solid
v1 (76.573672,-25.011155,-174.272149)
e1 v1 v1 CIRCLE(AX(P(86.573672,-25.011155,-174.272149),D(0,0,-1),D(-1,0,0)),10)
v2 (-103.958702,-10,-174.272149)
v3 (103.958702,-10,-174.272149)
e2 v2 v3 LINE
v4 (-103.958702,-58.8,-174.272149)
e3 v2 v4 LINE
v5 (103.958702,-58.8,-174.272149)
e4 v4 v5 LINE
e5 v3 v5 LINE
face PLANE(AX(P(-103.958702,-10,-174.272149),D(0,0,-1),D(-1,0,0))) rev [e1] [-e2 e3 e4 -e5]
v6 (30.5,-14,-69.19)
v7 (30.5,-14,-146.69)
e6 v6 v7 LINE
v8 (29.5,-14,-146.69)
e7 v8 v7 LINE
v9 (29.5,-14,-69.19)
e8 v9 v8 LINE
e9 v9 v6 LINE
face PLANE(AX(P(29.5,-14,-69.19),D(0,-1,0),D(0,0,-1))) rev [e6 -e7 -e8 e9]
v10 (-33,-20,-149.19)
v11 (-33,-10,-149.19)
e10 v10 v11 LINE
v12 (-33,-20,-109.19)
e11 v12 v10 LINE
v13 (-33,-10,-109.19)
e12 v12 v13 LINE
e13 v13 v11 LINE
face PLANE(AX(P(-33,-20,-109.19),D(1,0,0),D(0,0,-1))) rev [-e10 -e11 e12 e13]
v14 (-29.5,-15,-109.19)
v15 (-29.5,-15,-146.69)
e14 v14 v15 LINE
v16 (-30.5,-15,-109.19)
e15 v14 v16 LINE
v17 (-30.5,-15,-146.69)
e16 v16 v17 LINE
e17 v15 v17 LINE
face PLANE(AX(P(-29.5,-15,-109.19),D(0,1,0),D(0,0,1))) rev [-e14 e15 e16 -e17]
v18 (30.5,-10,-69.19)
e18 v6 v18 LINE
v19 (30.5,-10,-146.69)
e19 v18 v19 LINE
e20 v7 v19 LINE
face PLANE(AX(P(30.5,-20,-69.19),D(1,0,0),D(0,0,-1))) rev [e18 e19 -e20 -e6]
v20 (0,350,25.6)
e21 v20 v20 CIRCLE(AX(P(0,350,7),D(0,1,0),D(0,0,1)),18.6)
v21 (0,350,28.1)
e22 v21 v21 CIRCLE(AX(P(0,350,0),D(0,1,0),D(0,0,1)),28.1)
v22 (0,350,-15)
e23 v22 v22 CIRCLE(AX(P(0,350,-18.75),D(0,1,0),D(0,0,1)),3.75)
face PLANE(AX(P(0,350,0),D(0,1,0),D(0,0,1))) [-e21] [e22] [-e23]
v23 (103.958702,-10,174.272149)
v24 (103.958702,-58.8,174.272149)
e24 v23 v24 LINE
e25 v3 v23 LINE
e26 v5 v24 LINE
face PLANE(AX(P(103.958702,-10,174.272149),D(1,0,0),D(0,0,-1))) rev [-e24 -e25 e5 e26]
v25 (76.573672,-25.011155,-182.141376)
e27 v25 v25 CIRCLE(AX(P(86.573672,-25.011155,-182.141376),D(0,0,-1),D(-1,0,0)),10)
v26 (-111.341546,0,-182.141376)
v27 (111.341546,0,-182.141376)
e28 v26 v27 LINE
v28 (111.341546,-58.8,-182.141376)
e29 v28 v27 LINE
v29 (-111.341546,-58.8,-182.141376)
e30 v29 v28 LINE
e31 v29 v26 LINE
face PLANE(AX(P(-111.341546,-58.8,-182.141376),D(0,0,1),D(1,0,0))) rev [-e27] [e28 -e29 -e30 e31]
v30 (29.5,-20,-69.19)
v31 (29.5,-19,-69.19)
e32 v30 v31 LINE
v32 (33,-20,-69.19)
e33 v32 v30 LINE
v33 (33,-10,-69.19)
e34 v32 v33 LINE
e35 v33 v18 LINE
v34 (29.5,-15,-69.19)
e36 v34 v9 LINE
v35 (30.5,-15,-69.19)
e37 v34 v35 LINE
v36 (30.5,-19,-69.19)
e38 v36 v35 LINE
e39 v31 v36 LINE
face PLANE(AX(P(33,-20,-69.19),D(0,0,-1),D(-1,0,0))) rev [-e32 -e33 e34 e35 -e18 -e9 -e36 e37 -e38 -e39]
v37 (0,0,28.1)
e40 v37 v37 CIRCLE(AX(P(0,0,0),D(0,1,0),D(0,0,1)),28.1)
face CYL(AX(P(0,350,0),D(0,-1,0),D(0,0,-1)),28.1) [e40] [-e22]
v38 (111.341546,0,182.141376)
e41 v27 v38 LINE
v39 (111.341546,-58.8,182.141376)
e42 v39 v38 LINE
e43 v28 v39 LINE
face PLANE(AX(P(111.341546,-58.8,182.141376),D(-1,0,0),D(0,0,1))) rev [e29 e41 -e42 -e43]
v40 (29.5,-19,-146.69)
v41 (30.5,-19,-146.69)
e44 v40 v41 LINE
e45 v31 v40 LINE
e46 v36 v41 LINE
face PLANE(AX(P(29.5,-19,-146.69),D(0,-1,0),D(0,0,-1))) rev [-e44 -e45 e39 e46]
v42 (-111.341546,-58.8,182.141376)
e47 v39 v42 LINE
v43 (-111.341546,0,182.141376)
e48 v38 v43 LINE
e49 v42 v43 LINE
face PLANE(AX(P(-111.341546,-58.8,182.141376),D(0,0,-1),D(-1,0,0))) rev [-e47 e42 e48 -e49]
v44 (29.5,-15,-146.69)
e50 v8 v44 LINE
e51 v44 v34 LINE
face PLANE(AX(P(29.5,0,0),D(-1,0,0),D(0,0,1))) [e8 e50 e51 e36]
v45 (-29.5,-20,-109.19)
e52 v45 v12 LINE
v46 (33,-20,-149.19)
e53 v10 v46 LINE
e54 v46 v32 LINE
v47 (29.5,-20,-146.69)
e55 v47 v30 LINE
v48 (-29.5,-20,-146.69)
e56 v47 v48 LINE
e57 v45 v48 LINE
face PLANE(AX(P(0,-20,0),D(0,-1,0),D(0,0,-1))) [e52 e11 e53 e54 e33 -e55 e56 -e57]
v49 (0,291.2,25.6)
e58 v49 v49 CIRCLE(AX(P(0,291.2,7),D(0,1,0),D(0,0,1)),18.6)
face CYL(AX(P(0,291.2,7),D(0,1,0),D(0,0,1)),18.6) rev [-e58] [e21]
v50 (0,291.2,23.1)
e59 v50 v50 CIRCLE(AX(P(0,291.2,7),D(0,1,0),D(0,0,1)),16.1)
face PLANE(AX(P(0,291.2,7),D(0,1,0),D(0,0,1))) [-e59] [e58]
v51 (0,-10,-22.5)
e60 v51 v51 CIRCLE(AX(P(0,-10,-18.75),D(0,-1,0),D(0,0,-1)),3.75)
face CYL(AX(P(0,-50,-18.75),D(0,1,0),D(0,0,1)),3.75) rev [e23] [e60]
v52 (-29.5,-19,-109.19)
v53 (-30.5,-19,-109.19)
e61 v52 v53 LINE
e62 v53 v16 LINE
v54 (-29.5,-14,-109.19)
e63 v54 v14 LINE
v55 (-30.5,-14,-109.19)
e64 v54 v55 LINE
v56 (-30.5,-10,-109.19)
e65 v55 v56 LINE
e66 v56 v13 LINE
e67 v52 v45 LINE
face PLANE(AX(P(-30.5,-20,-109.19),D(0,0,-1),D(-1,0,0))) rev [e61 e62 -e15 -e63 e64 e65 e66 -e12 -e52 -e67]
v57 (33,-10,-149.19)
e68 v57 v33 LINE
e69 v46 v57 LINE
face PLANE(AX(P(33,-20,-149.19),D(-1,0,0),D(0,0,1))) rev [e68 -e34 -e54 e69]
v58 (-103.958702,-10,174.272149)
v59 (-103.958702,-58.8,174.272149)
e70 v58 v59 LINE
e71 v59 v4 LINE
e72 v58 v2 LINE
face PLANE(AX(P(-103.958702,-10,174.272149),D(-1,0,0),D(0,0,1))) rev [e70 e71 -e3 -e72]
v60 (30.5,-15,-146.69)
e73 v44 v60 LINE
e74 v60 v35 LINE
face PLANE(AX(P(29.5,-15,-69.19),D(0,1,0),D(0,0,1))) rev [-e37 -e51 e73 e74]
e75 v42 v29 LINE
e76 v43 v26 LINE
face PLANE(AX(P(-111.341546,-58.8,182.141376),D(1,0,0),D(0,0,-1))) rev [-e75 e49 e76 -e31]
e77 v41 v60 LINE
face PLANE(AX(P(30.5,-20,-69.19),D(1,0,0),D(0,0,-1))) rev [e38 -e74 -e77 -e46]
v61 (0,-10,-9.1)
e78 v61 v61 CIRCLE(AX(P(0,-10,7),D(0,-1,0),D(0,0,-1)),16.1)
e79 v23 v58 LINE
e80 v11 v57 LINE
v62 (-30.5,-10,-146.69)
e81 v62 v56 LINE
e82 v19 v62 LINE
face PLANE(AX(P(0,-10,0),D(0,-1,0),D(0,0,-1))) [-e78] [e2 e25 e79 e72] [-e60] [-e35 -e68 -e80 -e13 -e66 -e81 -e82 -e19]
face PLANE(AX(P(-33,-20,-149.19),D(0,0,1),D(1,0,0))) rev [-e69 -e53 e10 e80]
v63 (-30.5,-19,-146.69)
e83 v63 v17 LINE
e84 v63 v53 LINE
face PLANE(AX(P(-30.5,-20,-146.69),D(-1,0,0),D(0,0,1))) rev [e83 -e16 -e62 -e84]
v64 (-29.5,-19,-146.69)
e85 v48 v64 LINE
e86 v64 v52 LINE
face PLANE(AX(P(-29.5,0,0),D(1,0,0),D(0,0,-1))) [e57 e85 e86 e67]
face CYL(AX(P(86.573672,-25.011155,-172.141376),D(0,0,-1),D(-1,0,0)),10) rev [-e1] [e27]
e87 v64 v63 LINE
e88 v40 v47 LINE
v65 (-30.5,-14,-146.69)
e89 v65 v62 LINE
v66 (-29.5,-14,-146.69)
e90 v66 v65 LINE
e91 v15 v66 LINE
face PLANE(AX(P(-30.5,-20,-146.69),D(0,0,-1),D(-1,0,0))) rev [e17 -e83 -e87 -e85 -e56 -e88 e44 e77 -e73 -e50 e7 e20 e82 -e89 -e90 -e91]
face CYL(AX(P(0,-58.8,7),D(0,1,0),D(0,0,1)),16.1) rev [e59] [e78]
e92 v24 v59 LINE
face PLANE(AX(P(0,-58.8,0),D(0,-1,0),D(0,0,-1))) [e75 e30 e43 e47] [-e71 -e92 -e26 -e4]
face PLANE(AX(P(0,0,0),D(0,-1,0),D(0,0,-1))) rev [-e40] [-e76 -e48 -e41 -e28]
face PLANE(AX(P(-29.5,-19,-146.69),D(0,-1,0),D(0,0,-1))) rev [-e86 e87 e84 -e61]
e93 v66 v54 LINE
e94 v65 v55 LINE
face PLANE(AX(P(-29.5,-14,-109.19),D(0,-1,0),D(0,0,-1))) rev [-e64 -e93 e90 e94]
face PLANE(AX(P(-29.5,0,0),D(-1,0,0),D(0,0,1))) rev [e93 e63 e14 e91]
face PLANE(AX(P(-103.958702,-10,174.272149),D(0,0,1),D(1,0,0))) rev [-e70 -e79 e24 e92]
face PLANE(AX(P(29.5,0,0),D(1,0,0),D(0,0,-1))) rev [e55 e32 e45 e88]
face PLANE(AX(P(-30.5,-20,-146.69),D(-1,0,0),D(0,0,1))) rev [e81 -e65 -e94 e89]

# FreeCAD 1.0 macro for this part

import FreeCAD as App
import Part
import Sketcher

V = App.Vector
Q = App.Units.Quantity

doc = App.newDocument("Part")
params = doc.addObject("Spreadsheet::Sheet", "Params")
for row, (alias, value) in enumerate([
    ("sketch1_diameter", "56.2 mm"),
    ("pad1_length", "350 mm"),
    ("sketch2_diameter", "37.2 mm"),
    ("pocket1_length", "58.8 mm"),
    ("pad2_length", "58.8 mm"),
    ("pocket2_length", "48.8 mm"),
    ("sketch5_diameter", "32.2 mm"),
    ("pocket3_length", "350 mm"),
    ("sketch6_diameter", "7.5 mm"),
    ("pocket4_length", "400 mm"),
    ("sketch7_width", "61 mm"),
    ("sketch7_width2", "66 mm"),
    ("sketch7_height", "40 mm"),
    ("sketch7_height2", "80 mm"),
    ("sketch7_height3", "77.5 mm"),
    ("pad3_length", "10 mm"),
    ("sketch8_diameter", "20 mm"),
    ("pocket5_length", "10 mm"),
    ("sketch9_width", "1 mm"),
    ("sketch9_height", "37.5 mm"),
    ("pad4_length", "1 mm"),
    ("sketch10_width", "1 mm"),
    ("sketch10_height", "37.5 mm"),
    ("pad5_length", "1 mm"),
    ("sketch11_width", "1 mm"),
    ("sketch11_height", "77.5 mm"),
    ("pad6_length", "1 mm"),
    ("sketch12_width", "1 mm"),
    ("sketch12_height", "77.5 mm"),
    ("pad7_length", "1 mm"),
], start=1):
    params.set(f"A{row}", alias)
    params.set(f"B{row}", "=" + value)
    params.setAlias(f"B{row}", alias)

body = doc.addObject("PartDesign::Body", "Body")

# Sketch on XZ plane
sketch1 = body.newObject("Sketcher::SketchObject", "Sketch")
sketch1.AttachmentSupport = (doc.getObject("XZ_Plane"), [""])
sketch1.MapMode = "FlatFace"
sketch1.addGeometry(Part.Circle(V(0, 0, 0), V(0, 0, 1), 28), False)
sketch1.addConstraint(Sketcher.Constraint("Coincident", 0, 3, -1, 1))
sketch1.addConstraint(Sketcher.Constraint("Diameter", 0, Q("56.2 mm")))
sketch1.setExpression("Constraints[1]", "Params.sketch1_diameter")
pad1 = body.newObject("PartDesign::Pad", "Pad")
pad1.Profile = sketch1
pad1.setExpression("Length", "Params.pad1_length")
pad1.Reversed = True

# Sketch on XZ plane
sketch2 = body.newObject("Sketcher::SketchObject", "Sketch001")
sketch2.AttachmentSupport = (doc.getObject("XZ_Plane"), [""])
sketch2.MapMode = "FlatFace"
sketch2.AttachmentOffset = App.Placement(V(0, 0, -350), App.Rotation())
sketch2.addGeometry(Part.Circle(V(0, 7, 0), V(0, 0, 1), 19), False)
sketch2.addConstraint(Sketcher.Constraint("PointOnObject", 0, 3, -2))
sketch2.addConstraint(Sketcher.Constraint("Diameter", 0, Q("37.2 mm")))
sketch2.addConstraint(Sketcher.Constraint("DistanceY", -1, 1, 0, 3, Q("7 mm")))
sketch2.setExpression("Constraints[1]", "Params.sketch2_diameter")
pocket1 = body.newObject("PartDesign::Pocket", "Pocket")
pocket1.Profile = sketch2
pocket1.setExpression("Length", "Params.pocket1_length")
pocket1.Reversed = True

# Sketch on XZ plane
sketch3 = body.newObject("Sketcher::SketchObject", "Sketch002")
sketch3.AttachmentSupport = (doc.getObject("XZ_Plane"), [""])
sketch3.MapMode = "FlatFace"
sketch3.addGeometry(Part.LineSegment(V(111, -182, 0), V(111, 182, 0)), False)
sketch3.addGeometry(Part.LineSegment(V(111, 182, 0), V(-111, 182, 0)), False)
sketch3.addGeometry(Part.LineSegment(V(-111, 182, 0), V(-111, -182, 0)), False)
sketch3.addGeometry(Part.LineSegment(V(-111, -182, 0), V(111, -182, 0)), False)
sketch3.addConstraint(Sketcher.Constraint("Coincident", 0, 2, 1, 1))
sketch3.addConstraint(Sketcher.Constraint("Coincident", 1, 2, 2, 1))
sketch3.addConstraint(Sketcher.Constraint("Coincident", 2, 2, 3, 1))
sketch3.addConstraint(Sketcher.Constraint("Coincident", 3, 2, 0, 1))
sketch3.addConstraint(Sketcher.Constraint("Vertical", 0))
sketch3.addConstraint(Sketcher.Constraint("Horizontal", 1))
sketch3.addConstraint(Sketcher.Constraint("Vertical", 2))
sketch3.addConstraint(Sketcher.Constraint("Horizontal", 3))
sketch3.addConstraint(Sketcher.Constraint("Symmetric", 0, 2, 2, 2, -1, 1))
sketch3.addConstraint(Sketcher.Constraint("DistanceX", 1, 2, 1, 1, Q("222.683092 mm")))
sketch3.addConstraint(Sketcher.Constraint("DistanceY", 0, 1, 0, 2, Q("364.282752 mm")))
pad2 = body.newObject("PartDesign::Pad", "Pad001")
pad2.Profile = sketch3
pad2.setExpression("Length", "Params.pad2_length")

# Sketch on XZ plane
sketch4 = body.newObject("Sketcher::SketchObject", "Sketch003")
sketch4.AttachmentSupport = (doc.getObject("XZ_Plane"), [""])
sketch4.MapMode = "FlatFace"
sketch4.AttachmentOffset = App.Placement(V(0, 0, 58.8), App.Rotation())
sketch4.addGeometry(Part.LineSegment(V(104, -174, 0), V(104, 174, 0)), False)
sketch4.addGeometry(Part.LineSegment(V(104, 174, 0), V(-104, 174, 0)), False)
sketch4.addGeometry(Part.LineSegment(V(-104, 174, 0), V(-104, -174, 0)), False)
sketch4.addGeometry(Part.LineSegment(V(-104, -174, 0), V(104, -174, 0)), False)
sketch4.addConstraint(Sketcher.Constraint("Coincident", 0, 2, 1, 1))
sketch4.addConstraint(Sketcher.Constraint("Coincident", 1, 2, 2, 1))
sketch4.addConstraint(Sketcher.Constraint("Coincident", 2, 2, 3, 1))
sketch4.addConstraint(Sketcher.Constraint("Coincident", 3, 2, 0, 1))
sketch4.addConstraint(Sketcher.Constraint("Vertical", 0))
sketch4.addConstraint(Sketcher.Constraint("Horizontal", 1))
sketch4.addConstraint(Sketcher.Constraint("Vertical", 2))
sketch4.addConstraint(Sketcher.Constraint("Horizontal", 3))
sketch4.addConstraint(Sketcher.Constraint("Symmetric", 0, 2, 2, 2, -1, 1))
sketch4.addConstraint(Sketcher.Constraint("DistanceX", -1, 1, 0, 2, Q("103.958702 mm")))
sketch4.addConstraint(Sketcher.Constraint("DistanceY", 0, 1, 0, 2, Q("348.544298 mm")))
pocket2 = body.newObject("PartDesign::Pocket", "Pocket001")
pocket2.Profile = sketch4
pocket2.setExpression("Length", "Params.pocket2_length")

# Sketch on XZ plane
sketch5 = body.newObject("Sketcher::SketchObject", "Sketch004")
sketch5.AttachmentSupport = (doc.getObject("XZ_Plane"), [""])
sketch5.MapMode = "FlatFace"
sketch5.AttachmentOffset = App.Placement(V(0, 0, -291.2), App.Rotation())
sketch5.addGeometry(Part.Circle(V(0, 7, 0), V(0, 0, 1), 16), False)
sketch5.addConstraint(Sketcher.Constraint("PointOnObject", 0, 3, -2))
sketch5.addConstraint(Sketcher.Constraint("Diameter", 0, Q("32.2 mm")))
sketch5.addConstraint(Sketcher.Constraint("DistanceY", -1, 1, 0, 3, Q("7 mm")))
sketch5.setExpression("Constraints[1]", "Params.sketch5_diameter")
pocket3 = body.newObject("PartDesign::Pocket", "Pocket002")
pocket3.Profile = sketch5
pocket3.setExpression("Length", "Params.pocket3_length")
pocket3.Reversed = True

# Sketch on XZ plane
sketch6 = body.newObject("Sketcher::SketchObject", "Sketch005")
sketch6.AttachmentSupport = (doc.getObject("XZ_Plane"), [""])
sketch6.MapMode = "FlatFace"
sketch6.AttachmentOffset = App.Placement(V(0, 0, -350), App.Rotation())
sketch6.addGeometry(Part.Circle(V(0, -18.8, 0), V(0, 0, 1), 3.8), False)
sketch6.addConstraint(Sketcher.Constraint("PointOnObject", 0, 3, -2))
sketch6.addConstraint(Sketcher.Constraint("Diameter", 0, Q("7.5 mm")))
sketch6.addConstraint(Sketcher.Constraint("DistanceY", 0, 3, -1, 1, Q("18.75 mm")))
sketch6.setExpression("Constraints[1]", "Params.sketch6_diameter")
pocket4 = body.newObject("PartDesign::Pocket", "Pocket003")
pocket4.Profile = sketch6
pocket4.setExpression("Length", "Params.pocket4_length")
pocket4.Reversed = True

# Sketch on XZ plane
sketch7 = body.newObject("Sketcher::SketchObject", "Sketch006")
sketch7.AttachmentSupport = (doc.getObject("XZ_Plane"), [""])
sketch7.MapMode = "FlatFace"
sketch7.AttachmentOffset = App.Placement(V(0, 0, 10), App.Rotation())
sketch7.addGeometry(Part.LineSegment(V(33, -69.2, 0), V(30.5, -69.2, 0)), False)
sketch7.addGeometry(Part.LineSegment(V(30.5, -69.2, 0), V(30.5, -146.7, 0)), False)
sketch7.addGeometry(Part.LineSegment(V(30.5, -146.7, 0), V(-30.5, -146.7, 0)), False)
sketch7.addGeometry(Part.LineSegment(V(-30.5, -146.7, 0), V(-30.5, -109.2, 0)), False)
sketch7.addGeometry(Part.LineSegment(V(-30.5, -109.2, 0), V(-33, -109.2, 0)), False)
sketch7.addGeometry(Part.LineSegment(V(-33, -109.2, 0), V(-33, -149.2, 0)), False)
sketch7.addGeometry(Part.LineSegment(V(-33, -149.2, 0), V(33, -149.2, 0)), False)
sketch7.addGeometry(Part.LineSegment(V(33, -149.2, 0), V(33, -69.2, 0)), False)
sketch7.addConstraint(Sketcher.Constraint("Coincident", 0, 2, 1, 1))
sketch7.addConstraint(Sketcher.Constraint("Coincident", 1, 2, 2, 1))
sketch7.addConstraint(Sketcher.Constraint("Coincident", 2, 2, 3, 1))
sketch7.addConstraint(Sketcher.Constraint("Coincident", 3, 2, 4, 1))
sketch7.addConstraint(Sketcher.Constraint("Coincident", 4, 2, 5, 1))
sketch7.addConstraint(Sketcher.Constraint("Coincident", 5, 2, 6, 1))
sketch7.addConstraint(Sketcher.Constraint("Coincident", 6, 2, 7, 1))
sketch7.addConstraint(Sketcher.Constraint("Coincident", 7, 2, 0, 1))
sketch7.addConstraint(Sketcher.Constraint("Horizontal", 0))
sketch7.addConstraint(Sketcher.Constraint("Vertical", 1))
sketch7.addConstraint(Sketcher.Constraint("Horizontal", 2))
sketch7.addConstraint(Sketcher.Constraint("Vertical", 3))
sketch7.addConstraint(Sketcher.Constraint("Horizontal", 4))
sketch7.addConstraint(Sketcher.Constraint("Vertical", 5))
sketch7.addConstraint(Sketcher.Constraint("Horizontal", 6))
sketch7.addConstraint(Sketcher.Constraint("Vertical", 7))
sketch7.addConstraint(Sketcher.Constraint("Equal", 0, 4))
sketch7.addConstraint(Sketcher.Constraint("DistanceX", 2, 2, 2, 1, Q("61 mm")))
sketch7.addConstraint(Sketcher.Constraint("DistanceX", 6, 1, 6, 2, Q("66 mm")))
sketch7.addConstraint(Sketcher.Constraint("DistanceY", 5, 2, 5, 1, Q("40 mm")))
sketch7.addConstraint(Sketcher.Constraint("DistanceY", 7, 1, 7, 2, Q("80 mm")))
sketch7.addConstraint(Sketcher.Constraint("DistanceY", 1, 2, 1, 1, Q("77.5 mm")))
sketch7.addConstraint(Sketcher.Constraint("DistanceX", 4, 2, -1, 1, Q("33 mm")))
sketch7.addConstraint(Sketcher.Constraint("DistanceY", 0, 2, -1, 1, Q("69.19 mm")))
sketch7.setExpression("Constraints[17]", "Params.sketch7_width")
sketch7.setExpression("Constraints[18]", "Params.sketch7_width2")
sketch7.setExpression("Constraints[19]", "Params.sketch7_height")
sketch7.setExpression("Constraints[20]", "Params.sketch7_height2")
sketch7.setExpression("Constraints[21]", "Params.sketch7_height3")
pad3 = body.newObject("PartDesign::Pad", "Pad002")
pad3.Profile = sketch7
pad3.setExpression("Length", "Params.pad3_length")

# Sketch on XY plane
sketch8 = body.newObject("Sketcher::SketchObject", "Sketch007")
sketch8.AttachmentSupport = (doc.getObject("XY_Plane"), [""])
sketch8.MapMode = "FlatFace"
sketch8.AttachmentOffset = App.Placement(V(0, 0, -182.141376), App.Rotation())
sketch8.addGeometry(Part.Circle(V(87, -25, 0), V(0, 0, 1), 10), False)
sketch8.addConstraint(Sketcher.Constraint("Diameter", 0, Q("20 mm")))
sketch8.addConstraint(Sketcher.Constraint("DistanceX", -1, 1, 0, 3, Q("86.573672 mm")))
sketch8.addConstraint(Sketcher.Constraint("DistanceY", 0, 3, -1, 1, Q("25.011155 mm")))
sketch8.setExpression("Constraints[0]", "Params.sketch8_diameter")
pocket5 = body.newObject("PartDesign::Pocket", "Pocket004")
pocket5.Profile = sketch8
pocket5.setExpression("Length", "Params.pocket5_length")
pocket5.Reversed = True

# Sketch on YZ plane
sketch9 = body.newObject("Sketcher::SketchObject", "Sketch008")
sketch9.AttachmentSupport = (doc.getObject("YZ_Plane"), [""])
sketch9.MapMode = "FlatFace"
sketch9.AttachmentOffset = App.Placement(V(0, 0, -30.5), App.Rotation())
sketch9.addGeometry(Part.LineSegment(V(-19, -109.2, 0), V(-20, -109.2, 0)), False)
sketch9.addGeometry(Part.LineSegment(V(-20, -109.2, 0), V(-20, -146.7, 0)), False)
sketch9.addGeometry(Part.LineSegment(V(-20, -146.7, 0), V(-19, -146.7, 0)), False)
sketch9.addGeometry(Part.LineSegment(V(-19, -146.7, 0), V(-19, -109.2, 0)), False)
sketch9.addConstraint(Sketcher.Constraint("Coincident", 0, 2, 1, 1))
sketch9.addConstraint(Sketcher.Constraint("Coincident", 1, 2, 2, 1))
sketch9.addConstraint(Sketcher.Constraint("Coincident", 2, 2, 3, 1))
sketch9.addConstraint(Sketcher.Constraint("Coincident", 3, 2, 0, 1))
sketch9.addConstraint(Sketcher.Constraint("Horizontal", 0))
sketch9.addConstraint(Sketcher.Constraint("Vertical", 1))
sketch9.addConstraint(Sketcher.Constraint("Horizontal", 2))
sketch9.addConstraint(Sketcher.Constraint("Vertical", 3))
sketch9.addConstraint(Sketcher.Constraint("DistanceX", 0, 2, 0, 1, Q("1 mm")))
sketch9.addConstraint(Sketcher.Constraint("DistanceY", 1, 2, 1, 1, Q("37.5 mm")))
sketch9.addConstraint(Sketcher.Constraint("DistanceX", 0, 2, -1, 1, Q("20 mm")))
sketch9.addConstraint(Sketcher.Constraint("DistanceY", 0, 2, -1, 1, Q("109.19 mm")))
sketch9.setExpression("Constraints[8]", "Params.sketch9_width")
sketch9.setExpression("Constraints[9]", "Params.sketch9_height")
pad4 = body.newObject("PartDesign::Pad", "Pad003")
pad4.Profile = sketch9
pad4.setExpression("Length", "Params.pad4_length")

# Sketch on YZ plane
sketch10 = body.newObject("Sketcher::SketchObject", "Sketch009")
sketch10.AttachmentSupport = (doc.getObject("YZ_Plane"), [""])
sketch10.MapMode = "FlatFace"
sketch10.AttachmentOffset = App.Placement(V(0, 0, -30.5), App.Rotation())
sketch10.addGeometry(Part.LineSegment(V(-14, -109.2, 0), V(-15, -109.2, 0)), False)
sketch10.addGeometry(Part.LineSegment(V(-15, -109.2, 0), V(-15, -146.7, 0)), False)
sketch10.addGeometry(Part.LineSegment(V(-15, -146.7, 0), V(-14, -146.7, 0)), False)
sketch10.addGeometry(Part.LineSegment(V(-14, -146.7, 0), V(-14, -109.2, 0)), False)
sketch10.addConstraint(Sketcher.Constraint("Coincident", 0, 2, 1, 1))
sketch10.addConstraint(Sketcher.Constraint("Coincident", 1, 2, 2, 1))
sketch10.addConstraint(Sketcher.Constraint("Coincident", 2, 2, 3, 1))
sketch10.addConstraint(Sketcher.Constraint("Coincident", 3, 2, 0, 1))
sketch10.addConstraint(Sketcher.Constraint("Horizontal", 0))
sketch10.addConstraint(Sketcher.Constraint("Vertical", 1))
sketch10.addConstraint(Sketcher.Constraint("Horizontal", 2))
sketch10.addConstraint(Sketcher.Constraint("Vertical", 3))
sketch10.addConstraint(Sketcher.Constraint("DistanceX", 0, 2, 0, 1, Q("1 mm")))
sketch10.addConstraint(Sketcher.Constraint("DistanceY", 1, 2, 1, 1, Q("37.5 mm")))
sketch10.addConstraint(Sketcher.Constraint("DistanceX", 0, 2, -1, 1, Q("15 mm")))
sketch10.addConstraint(Sketcher.Constraint("DistanceY", 0, 2, -1, 1, Q("109.19 mm")))
sketch10.setExpression("Constraints[8]", "Params.sketch10_width")
sketch10.setExpression("Constraints[9]", "Params.sketch10_height")
pad5 = body.newObject("PartDesign::Pad", "Pad004")
pad5.Profile = sketch10
pad5.setExpression("Length", "Params.pad5_length")

# Sketch on YZ plane
sketch11 = body.newObject("Sketcher::SketchObject", "Sketch010")
sketch11.AttachmentSupport = (doc.getObject("YZ_Plane"), [""])
sketch11.MapMode = "FlatFace"
sketch11.AttachmentOffset = App.Placement(V(0, 0, 30.5), App.Rotation())
sketch11.addGeometry(Part.LineSegment(V(-19, -146.7, 0), V(-20, -146.7, 0)), False)
sketch11.addGeometry(Part.LineSegment(V(-20, -146.7, 0), V(-20, -69.2, 0)), False)
sketch11.addGeometry(Part.LineSegment(V(-20, -69.2, 0), V(-19, -69.2, 0)), False)
sketch11.addGeometry(Part.LineSegment(V(-19, -69.2, 0), V(-19, -146.7, 0)), False)
sketch11.addConstraint(Sketcher.Constraint("Coincident", 0, 2, 1, 1))
sketch11.addConstraint(Sketcher.Constraint("Coincident", 1, 2, 2, 1))
sketch11.addConstraint(Sketcher.Constraint("Coincident", 2, 2, 3, 1))
sketch11.addConstraint(Sketcher.Constraint("Coincident", 3, 2, 0, 1))
sketch11.addConstraint(Sketcher.Constraint("Horizontal", 0))
sketch11.addConstraint(Sketcher.Constraint("Vertical", 1))
sketch11.addConstraint(Sketcher.Constraint("Horizontal", 2))
sketch11.addConstraint(Sketcher.Constraint("Vertical", 3))
sketch11.addConstraint(Sketcher.Constraint("DistanceX", 0, 2, 0, 1, Q("1 mm")))
sketch11.addConstraint(Sketcher.Constraint("DistanceY", 1, 1, 1, 2, Q("77.5 mm")))
sketch11.addConstraint(Sketcher.Constraint("DistanceX", 0, 2, -1, 1, Q("20 mm")))
sketch11.addConstraint(Sketcher.Constraint("DistanceY", 0, 2, -1, 1, Q("146.69 mm")))
sketch11.setExpression("Constraints[8]", "Params.sketch11_width")
sketch11.setExpression("Constraints[9]", "Params.sketch11_height")
pad6 = body.newObject("PartDesign::Pad", "Pad005")
pad6.Profile = sketch11
pad6.setExpression("Length", "Params.pad6_length")
pad6.Reversed = True

# Sketch on YZ plane
sketch12 = body.newObject("Sketcher::SketchObject", "Sketch011")
sketch12.AttachmentSupport = (doc.getObject("YZ_Plane"), [""])
sketch12.MapMode = "FlatFace"
sketch12.AttachmentOffset = App.Placement(V(0, 0, 30.5), App.Rotation())
sketch12.addGeometry(Part.LineSegment(V(-14, -146.7, 0), V(-15, -146.7, 0)), False)
sketch12.addGeometry(Part.LineSegment(V(-15, -146.7, 0), V(-15, -69.2, 0)), False)
sketch12.addGeometry(Part.LineSegment(V(-15, -69.2, 0), V(-14, -69.2, 0)), False)
sketch12.addGeometry(Part.LineSegment(V(-14, -69.2, 0), V(-14, -146.7, 0)), False)
sketch12.addConstraint(Sketcher.Constraint("Coincident", 0, 2, 1, 1))
sketch12.addConstraint(Sketcher.Constraint("Coincident", 1, 2, 2, 1))
sketch12.addConstraint(Sketcher.Constraint("Coincident", 2, 2, 3, 1))
sketch12.addConstraint(Sketcher.Constraint("Coincident", 3, 2, 0, 1))
sketch12.addConstraint(Sketcher.Constraint("Horizontal", 0))
sketch12.addConstraint(Sketcher.Constraint("Vertical", 1))
sketch12.addConstraint(Sketcher.Constraint("Horizontal", 2))
sketch12.addConstraint(Sketcher.Constraint("Vertical", 3))
sketch12.addConstraint(Sketcher.Constraint("DistanceX", 0, 2, 0, 1, Q("1 mm")))
sketch12.addConstraint(Sketcher.Constraint("DistanceY", 1, 1, 1, 2, Q("77.5 mm")))
sketch12.addConstraint(Sketcher.Constraint("DistanceX", 0, 2, -1, 1, Q("15 mm")))
sketch12.addConstraint(Sketcher.Constraint("DistanceY", 0, 2, -1, 1, Q("146.69 mm")))
sketch12.setExpression("Constraints[8]", "Params.sketch12_width")
sketch12.setExpression("Constraints[9]", "Params.sketch12_height")
pad7 = body.newObject("PartDesign::Pad", "Pad006")
pad7.Profile = sketch12
pad7.setExpression("Length", "Params.pad7_length")
pad7.Reversed = True

doc.recompute()
